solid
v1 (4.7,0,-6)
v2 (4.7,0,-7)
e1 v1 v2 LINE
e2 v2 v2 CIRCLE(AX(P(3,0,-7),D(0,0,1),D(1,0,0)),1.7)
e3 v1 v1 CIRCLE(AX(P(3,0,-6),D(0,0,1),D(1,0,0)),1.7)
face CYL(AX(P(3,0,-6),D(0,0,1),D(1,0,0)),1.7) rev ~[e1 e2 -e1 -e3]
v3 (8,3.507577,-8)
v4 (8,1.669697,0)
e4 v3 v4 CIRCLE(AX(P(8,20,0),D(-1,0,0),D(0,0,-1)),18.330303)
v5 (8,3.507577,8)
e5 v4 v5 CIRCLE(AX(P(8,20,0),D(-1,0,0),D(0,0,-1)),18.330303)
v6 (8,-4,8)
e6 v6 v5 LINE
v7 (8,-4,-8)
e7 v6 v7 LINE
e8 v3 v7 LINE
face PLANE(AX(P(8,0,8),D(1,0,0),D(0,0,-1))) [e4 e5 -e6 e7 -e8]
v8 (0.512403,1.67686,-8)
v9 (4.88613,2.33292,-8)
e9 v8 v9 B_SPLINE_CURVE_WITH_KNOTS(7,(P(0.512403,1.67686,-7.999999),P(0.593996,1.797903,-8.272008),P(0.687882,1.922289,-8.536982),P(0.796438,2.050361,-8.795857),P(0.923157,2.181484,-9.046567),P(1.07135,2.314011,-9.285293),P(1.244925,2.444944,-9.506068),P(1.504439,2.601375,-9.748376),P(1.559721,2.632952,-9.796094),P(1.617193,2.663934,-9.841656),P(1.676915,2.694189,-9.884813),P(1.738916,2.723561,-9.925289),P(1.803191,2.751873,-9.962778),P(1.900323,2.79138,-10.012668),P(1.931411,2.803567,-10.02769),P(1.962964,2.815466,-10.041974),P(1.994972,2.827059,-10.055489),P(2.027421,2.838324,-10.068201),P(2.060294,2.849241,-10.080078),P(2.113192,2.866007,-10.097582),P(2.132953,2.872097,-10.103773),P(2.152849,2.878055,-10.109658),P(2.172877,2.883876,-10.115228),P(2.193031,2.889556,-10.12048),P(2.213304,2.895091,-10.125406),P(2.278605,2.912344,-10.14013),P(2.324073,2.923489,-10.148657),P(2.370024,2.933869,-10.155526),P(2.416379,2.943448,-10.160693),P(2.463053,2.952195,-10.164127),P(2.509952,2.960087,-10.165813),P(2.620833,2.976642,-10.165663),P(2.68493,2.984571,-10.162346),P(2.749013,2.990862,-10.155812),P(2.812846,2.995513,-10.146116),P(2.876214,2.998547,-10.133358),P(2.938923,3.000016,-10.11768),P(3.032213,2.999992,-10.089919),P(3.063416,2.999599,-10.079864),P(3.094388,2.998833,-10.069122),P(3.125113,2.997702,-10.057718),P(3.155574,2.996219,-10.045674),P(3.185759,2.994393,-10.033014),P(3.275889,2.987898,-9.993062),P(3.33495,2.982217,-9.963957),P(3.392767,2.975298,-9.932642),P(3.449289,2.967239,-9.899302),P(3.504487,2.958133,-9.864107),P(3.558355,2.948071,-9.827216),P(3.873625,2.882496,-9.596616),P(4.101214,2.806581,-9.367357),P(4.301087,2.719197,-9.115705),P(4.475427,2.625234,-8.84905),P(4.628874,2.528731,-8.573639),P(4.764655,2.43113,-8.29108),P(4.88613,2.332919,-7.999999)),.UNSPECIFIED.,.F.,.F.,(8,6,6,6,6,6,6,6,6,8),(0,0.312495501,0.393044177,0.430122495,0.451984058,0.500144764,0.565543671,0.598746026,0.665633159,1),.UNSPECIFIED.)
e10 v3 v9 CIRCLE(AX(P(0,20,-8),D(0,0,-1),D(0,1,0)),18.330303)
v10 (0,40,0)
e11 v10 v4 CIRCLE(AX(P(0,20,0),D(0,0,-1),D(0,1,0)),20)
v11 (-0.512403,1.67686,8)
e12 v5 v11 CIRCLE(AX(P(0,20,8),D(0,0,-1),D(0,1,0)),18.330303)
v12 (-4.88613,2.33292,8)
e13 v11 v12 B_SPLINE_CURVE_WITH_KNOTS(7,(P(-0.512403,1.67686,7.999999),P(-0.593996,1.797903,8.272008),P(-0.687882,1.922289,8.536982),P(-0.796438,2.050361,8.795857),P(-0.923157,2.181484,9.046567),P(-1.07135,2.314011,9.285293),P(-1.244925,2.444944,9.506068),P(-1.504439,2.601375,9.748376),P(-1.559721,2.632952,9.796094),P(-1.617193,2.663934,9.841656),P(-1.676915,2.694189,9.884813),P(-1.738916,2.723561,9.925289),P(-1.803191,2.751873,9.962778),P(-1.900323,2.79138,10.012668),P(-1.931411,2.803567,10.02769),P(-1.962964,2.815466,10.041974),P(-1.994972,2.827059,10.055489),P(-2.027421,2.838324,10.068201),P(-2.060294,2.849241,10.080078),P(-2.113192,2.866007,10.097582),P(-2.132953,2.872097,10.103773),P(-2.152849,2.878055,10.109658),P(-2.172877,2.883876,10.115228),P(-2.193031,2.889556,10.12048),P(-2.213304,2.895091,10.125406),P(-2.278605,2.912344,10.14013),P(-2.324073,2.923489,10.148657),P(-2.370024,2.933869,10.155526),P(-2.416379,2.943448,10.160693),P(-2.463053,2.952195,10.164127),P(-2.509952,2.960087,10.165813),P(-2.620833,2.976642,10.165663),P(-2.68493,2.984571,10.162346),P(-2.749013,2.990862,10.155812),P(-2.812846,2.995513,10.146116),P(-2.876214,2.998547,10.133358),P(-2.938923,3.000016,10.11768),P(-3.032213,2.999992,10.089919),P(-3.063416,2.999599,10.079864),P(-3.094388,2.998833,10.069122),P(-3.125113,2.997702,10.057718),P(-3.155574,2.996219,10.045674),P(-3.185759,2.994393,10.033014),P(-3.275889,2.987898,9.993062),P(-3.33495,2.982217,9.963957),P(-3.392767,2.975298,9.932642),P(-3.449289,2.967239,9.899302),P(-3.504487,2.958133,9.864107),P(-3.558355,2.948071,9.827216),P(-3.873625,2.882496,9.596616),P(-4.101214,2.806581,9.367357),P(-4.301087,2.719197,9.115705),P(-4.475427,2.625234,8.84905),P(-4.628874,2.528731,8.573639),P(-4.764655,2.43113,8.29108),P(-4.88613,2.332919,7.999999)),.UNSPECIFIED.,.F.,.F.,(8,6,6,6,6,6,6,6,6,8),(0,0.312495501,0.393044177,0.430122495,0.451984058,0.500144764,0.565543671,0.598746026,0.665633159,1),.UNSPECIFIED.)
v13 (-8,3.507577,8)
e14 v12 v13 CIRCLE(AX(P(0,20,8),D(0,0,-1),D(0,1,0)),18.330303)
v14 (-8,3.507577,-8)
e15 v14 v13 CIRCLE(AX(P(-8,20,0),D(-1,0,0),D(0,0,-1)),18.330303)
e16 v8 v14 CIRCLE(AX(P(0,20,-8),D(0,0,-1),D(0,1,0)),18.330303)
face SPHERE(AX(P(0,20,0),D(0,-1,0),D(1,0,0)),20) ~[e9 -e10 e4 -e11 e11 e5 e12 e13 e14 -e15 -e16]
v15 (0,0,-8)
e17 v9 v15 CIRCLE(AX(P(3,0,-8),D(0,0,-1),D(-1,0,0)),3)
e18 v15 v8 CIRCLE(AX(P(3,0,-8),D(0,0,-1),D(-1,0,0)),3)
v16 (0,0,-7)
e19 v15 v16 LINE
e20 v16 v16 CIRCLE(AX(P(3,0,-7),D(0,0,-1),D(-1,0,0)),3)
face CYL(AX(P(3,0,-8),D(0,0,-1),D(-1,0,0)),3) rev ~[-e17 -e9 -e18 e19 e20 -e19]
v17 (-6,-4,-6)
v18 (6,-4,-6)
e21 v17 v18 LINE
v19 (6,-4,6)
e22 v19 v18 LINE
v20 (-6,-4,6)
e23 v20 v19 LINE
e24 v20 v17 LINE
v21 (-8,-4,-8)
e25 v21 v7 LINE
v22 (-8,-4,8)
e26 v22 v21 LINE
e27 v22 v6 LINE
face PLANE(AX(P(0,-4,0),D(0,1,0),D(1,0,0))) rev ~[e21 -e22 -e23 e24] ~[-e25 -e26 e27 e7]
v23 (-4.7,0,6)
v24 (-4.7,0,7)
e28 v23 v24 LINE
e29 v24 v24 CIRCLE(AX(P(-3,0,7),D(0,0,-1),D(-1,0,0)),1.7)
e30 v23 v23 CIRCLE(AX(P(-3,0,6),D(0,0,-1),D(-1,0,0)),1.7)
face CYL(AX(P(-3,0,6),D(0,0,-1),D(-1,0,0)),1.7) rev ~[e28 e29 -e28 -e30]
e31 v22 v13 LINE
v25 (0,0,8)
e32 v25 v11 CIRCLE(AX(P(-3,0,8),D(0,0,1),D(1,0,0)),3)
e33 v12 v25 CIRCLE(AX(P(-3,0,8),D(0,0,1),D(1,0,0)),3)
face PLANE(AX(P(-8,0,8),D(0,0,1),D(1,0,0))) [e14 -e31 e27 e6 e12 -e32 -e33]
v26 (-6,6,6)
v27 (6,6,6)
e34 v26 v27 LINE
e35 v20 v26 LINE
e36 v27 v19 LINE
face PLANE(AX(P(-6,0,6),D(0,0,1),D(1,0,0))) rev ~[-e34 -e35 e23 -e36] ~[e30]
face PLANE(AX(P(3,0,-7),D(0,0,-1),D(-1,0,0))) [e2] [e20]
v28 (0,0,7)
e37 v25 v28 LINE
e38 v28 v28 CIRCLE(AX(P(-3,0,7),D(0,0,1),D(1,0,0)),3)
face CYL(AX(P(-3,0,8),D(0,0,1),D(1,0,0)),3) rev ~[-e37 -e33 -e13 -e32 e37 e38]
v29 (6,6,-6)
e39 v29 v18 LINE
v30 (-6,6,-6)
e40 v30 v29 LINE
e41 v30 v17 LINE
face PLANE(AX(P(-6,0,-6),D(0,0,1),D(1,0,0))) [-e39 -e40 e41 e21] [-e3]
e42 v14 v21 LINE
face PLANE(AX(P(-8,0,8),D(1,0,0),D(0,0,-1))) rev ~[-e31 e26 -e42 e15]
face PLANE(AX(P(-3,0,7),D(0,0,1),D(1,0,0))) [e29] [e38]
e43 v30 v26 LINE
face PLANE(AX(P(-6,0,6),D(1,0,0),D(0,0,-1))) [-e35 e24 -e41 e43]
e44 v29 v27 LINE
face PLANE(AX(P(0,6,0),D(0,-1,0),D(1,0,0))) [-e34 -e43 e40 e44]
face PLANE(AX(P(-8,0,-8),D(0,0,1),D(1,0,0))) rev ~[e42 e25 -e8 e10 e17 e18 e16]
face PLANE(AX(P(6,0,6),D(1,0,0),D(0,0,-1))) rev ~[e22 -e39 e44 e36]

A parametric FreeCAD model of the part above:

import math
import FreeCAD as App
import Part
import Sketcher

V = App.Vector
Q = App.Units.Quantity


def add_polygon(sketch, points):
    """Adds a closed chain of lines whose ends are joined by coincident constraints."""
    first, n = sketch.GeometryCount, len(points)
    for a, b in zip(points, points[1:] + points[:1]):
        sketch.addGeometry(Part.LineSegment(App.Vector(*a, 0), App.Vector(*b, 0)), False)
    for i in range(n):
        sketch.addConstraint(Sketcher.Constraint("Coincident", first + i, 2, first + (i + 1) % n, 1))

doc = App.newDocument("Part")
params = doc.addObject("Spreadsheet::Sheet", "Params")
for row, (alias, value) in enumerate([
    ("sketch1_radius", "20 mm"),
    ("revolution_angle", "360 deg"),
    ("sketch2_width", "16 mm"),
    ("sketch2_width2", "12 mm"),
    ("sketch3_width", "16 mm"),
    ("sketch3_width2", "12 mm"),
    ("pad2_length", "4 mm"),
    ("sketch4_width", "12 mm"),
    ("pocket1_length", "10 mm"),
    ("sketch5_diameter", "3.4 mm"),
    ("pocket2_length", "3 mm"),
    ("sketch6_diameter", "3.4 mm"),
    ("pocket3_length", "3 mm"),
    ("sketch7_diameter", "6 mm"),
    ("pocket4_length", "13 mm"),
    ("pocket4_length2", "1 mm"),
    ("sketch8_diameter", "6 mm"),
    ("pocket5_length", "13 mm"),
    ("pocket5_length2", "1 mm"),
], start=1):
    params.set(f"A{row}", alias)
    params.set(f"B{row}", "=" + value)
    params.setAlias(f"B{row}", alias)

body = doc.addObject("PartDesign::Body", "Body")

# Sketch on XY plane
sketch1 = doc.addObject("Sketcher::SketchObject", "Sketch")
body.addObject(sketch1)
sketch1.AttachmentSupport = (doc.XY_Plane, [""])
sketch1.MapMode = "FlatFace"
sketch1.addGeometry([
    Part.LineSegment(V(0, 40, 0), V(0, 0, 0)),
    Part.ArcOfCircle(Part.Circle(V(0, 20, 0), V(0, 0, 1), 20), math.radians(-90), math.radians(90)),
], False)
sketch1.addConstraint([
    Sketcher.Constraint("Coincident", 0, 1, 1, 2),
    Sketcher.Constraint("Coincident", 1, 1, 0, 2),
    Sketcher.Constraint("Vertical", 0),
    Sketcher.Constraint("Coincident", 1, 1, -1, 1),
    Sketcher.Constraint("PointOnObject", 1, 3, -2),
    Sketcher.Constraint("Radius", 1, Q("20 mm")),
])
sketch1.setExpression("Constraints[5]", "Params.sketch1_radius")
revolution = doc.addObject("PartDesign::Revolution", "Revolution")
body.addObject(revolution)
revolution.Profile = sketch1
revolution.ReferenceAxis = (sketch1, ["V_Axis"])
revolution.setExpression("Angle", "Params.revolution_angle")

# Sketch on XZ plane
sketch2 = doc.addObject("Sketcher::SketchObject", "Sketch001")
body.addObject(sketch2)
sketch2.AttachmentSupport = (doc.XZ_Plane, [""])
sketch2.MapMode = "FlatFace"
add_polygon(sketch2, [(-8, -8), (-8, 8), (8, 8), (8, -8)])  # lines 0-3
add_polygon(sketch2, [(6, 6), (-6, 6), (-6, -6), (6, -6)])  # lines 4-7
sketch2.addConstraint([
    Sketcher.Constraint("Vertical", 0),
    Sketcher.Constraint("Horizontal", 1),
    Sketcher.Constraint("Vertical", 2),
    Sketcher.Constraint("Horizontal", 3),
    Sketcher.Constraint("Horizontal", 4),
    Sketcher.Constraint("Vertical", 5),
    Sketcher.Constraint("Horizontal", 6),
    Sketcher.Constraint("Vertical", 7),
    Sketcher.Constraint("Symmetric", 0, 2, 2, 2, -1, 1),
    Sketcher.Constraint("Symmetric", 4, 2, 6, 2, -1, 1),
    Sketcher.Constraint("Equal", 3, 0),
    Sketcher.Constraint("Equal", 6, 5),
    Sketcher.Constraint("DistanceX", 1, 1, 1, 2, Q("16 mm")),
    Sketcher.Constraint("DistanceX", 4, 2, 4, 1, Q("12 mm")),
])
sketch2.setExpression("Constraints[20]", "Params.sketch2_width")
sketch2.setExpression("Constraints[21]", "Params.sketch2_width2")
pad1 = doc.addObject("PartDesign::Pad", "Pad")
body.addObject(pad1)
pad1.Profile = sketch2
pad1.Type = "UpToFirst"
pad1.Reversed = True

# Sketch on XZ plane
sketch3 = doc.addObject("Sketcher::SketchObject", "Sketch002")
body.addObject(sketch3)
sketch3.AttachmentSupport = (doc.XZ_Plane, [""])
sketch3.MapMode = "FlatFace"
add_polygon(sketch3, [(-8, -8), (-8, 8), (8, 8), (8, -8)])  # lines 0-3
add_polygon(sketch3, [(6, 6), (-6, 6), (-6, -6), (6, -6)])  # lines 4-7
sketch3.addConstraint([
    Sketcher.Constraint("Vertical", 0),
    Sketcher.Constraint("Horizontal", 1),
    Sketcher.Constraint("Vertical", 2),
    Sketcher.Constraint("Horizontal", 3),
    Sketcher.Constraint("Horizontal", 4),
    Sketcher.Constraint("Vertical", 5),
    Sketcher.Constraint("Horizontal", 6),
    Sketcher.Constraint("Vertical", 7),
    Sketcher.Constraint("Symmetric", 0, 2, 2, 2, -1, 1),
    Sketcher.Constraint("Symmetric", 4, 2, 6, 2, -1, 1),
    Sketcher.Constraint("Equal", 3, 0),
    Sketcher.Constraint("Equal", 6, 5),
    Sketcher.Constraint("DistanceX", 1, 1, 1, 2, Q("16 mm")),
    Sketcher.Constraint("DistanceX", 4, 2, 4, 1, Q("12 mm")),
])
sketch3.setExpression("Constraints[20]", "Params.sketch3_width")
sketch3.setExpression("Constraints[21]", "Params.sketch3_width2")
pad2 = doc.addObject("PartDesign::Pad", "Pad001")
body.addObject(pad2)
pad2.Profile = sketch3
pad2.setExpression("Length", "Params.pad2_length")

# Sketch on XZ plane
sketch4 = doc.addObject("Sketcher::SketchObject", "Sketch003")
body.addObject(sketch4)
sketch4.AttachmentSupport = (doc.XZ_Plane, [""])
sketch4.MapMode = "FlatFace"
sketch4.AttachmentOffset = App.Placement(V(0, 0, 4), App.Rotation())
add_polygon(sketch4, [(-6, 6), (-6, -6), (6, -6), (6, 6)])  # lines 0-3
sketch4.addConstraint([
    Sketcher.Constraint("Vertical", 0),
    Sketcher.Constraint("Horizontal", 1),
    Sketcher.Constraint("Vertical", 2),
    Sketcher.Constraint("Horizontal", 3),
    Sketcher.Constraint("Symmetric", 0, 2, 2, 2, -1, 1),
    Sketcher.Constraint("Equal", 3, 0),
    Sketcher.Constraint("DistanceX", 1, 1, 1, 2, Q("12 mm")),
])
sketch4.setExpression("Constraints[10]", "Params.sketch4_width")
pocket1 = doc.addObject("PartDesign::Pocket", "Pocket")
body.addObject(pocket1)
pocket1.Profile = sketch4
pocket1.setExpression("Length", "Params.pocket1_length")

# Sketch on XY plane
sketch5 = doc.addObject("Sketcher::SketchObject", "Sketch004")
body.addObject(sketch5)
sketch5.AttachmentSupport = (doc.XY_Plane, [""])
sketch5.MapMode = "FlatFace"
sketch5.AttachmentOffset = App.Placement(V(0, 0, 6), App.Rotation())
sketch5.addGeometry(Part.Circle(V(-3, 0, 0), V(0, 0, 1), 1.7), False)
sketch5.addConstraint([
    Sketcher.Constraint("PointOnObject", 0, 3, -1),
    Sketcher.Constraint("Diameter", 0, Q("3.4 mm")),
    Sketcher.Constraint("DistanceX", 0, 3, -1, 1, Q("3 mm")),
])
sketch5.setExpression("Constraints[1]", "Params.sketch5_diameter")
pocket2 = doc.addObject("PartDesign::Pocket", "Pocket001")
body.addObject(pocket2)
pocket2.Profile = sketch5
pocket2.setExpression("Length", "Params.pocket2_length")
pocket2.Reversed = True

# Sketch on XY plane
sketch6 = doc.addObject("Sketcher::SketchObject", "Sketch005")
body.addObject(sketch6)
sketch6.AttachmentSupport = (doc.XY_Plane, [""])
sketch6.MapMode = "FlatFace"
sketch6.AttachmentOffset = App.Placement(V(0, 0, -6), App.Rotation())
sketch6.addGeometry(Part.Circle(V(3, 0, 0), V(0, 0, 1), 1.7), False)
sketch6.addConstraint([
    Sketcher.Constraint("PointOnObject", 0, 3, -1),
    Sketcher.Constraint("Diameter", 0, Q("3.4 mm")),
    Sketcher.Constraint("DistanceX", -1, 1, 0, 3, Q("3 mm")),
])
sketch6.setExpression("Constraints[1]", "Params.sketch6_diameter")
pocket3 = doc.addObject("PartDesign::Pocket", "Pocket002")
body.addObject(pocket3)
pocket3.Profile = sketch6
pocket3.setExpression("Length", "Params.pocket3_length")

# Sketch on XY plane
sketch7 = doc.addObject("Sketcher::SketchObject", "Sketch006")
body.addObject(sketch7)
sketch7.AttachmentSupport = (doc.XY_Plane, [""])
sketch7.MapMode = "FlatFace"
sketch7.AttachmentOffset = App.Placement(V(0, 0, -8), App.Rotation())
sketch7.addGeometry(Part.Circle(V(3, 0, 0), V(0, 0, 1), 3), False)
sketch7.addConstraint([
    Sketcher.Constraint("PointOnObject", 0, 3, -1),
    Sketcher.Constraint("Diameter", 0, Q("6 mm")),
    Sketcher.Constraint("DistanceX", -1, 1, 0, 3, Q("3 mm")),
])
sketch7.setExpression("Constraints[1]", "Params.sketch7_diameter")
pocket4 = doc.addObject("PartDesign::Pocket", "Pocket003")
body.addObject(pocket4)
pocket4.Profile = sketch7
pocket4.Type = "TwoLengths"
pocket4.setExpression("Length", "Params.pocket4_length")
pocket4.setExpression("Length2", "Params.pocket4_length2")

# Sketch on XY plane
sketch8 = doc.addObject("Sketcher::SketchObject", "Sketch007")
body.addObject(sketch8)
sketch8.AttachmentSupport = (doc.XY_Plane, [""])
sketch8.MapMode = "FlatFace"
sketch8.AttachmentOffset = App.Placement(V(0, 0, 8), App.Rotation())
sketch8.addGeometry(Part.Circle(V(-3, 0, 0), V(0, 0, 1), 3), False)
sketch8.addConstraint([
    Sketcher.Constraint("PointOnObject", 0, 3, -1),
    Sketcher.Constraint("Diameter", 0, Q("6 mm")),
    Sketcher.Constraint("DistanceX", 0, 3, -1, 1, Q("3 mm")),
])
sketch8.setExpression("Constraints[1]", "Params.sketch8_diameter")
pocket5 = doc.addObject("PartDesign::Pocket", "Pocket004")
body.addObject(pocket5)
pocket5.Profile = sketch8
pocket5.Type = "TwoLengths"
pocket5.setExpression("Length", "Params.pocket5_length")
pocket5.setExpression("Length2", "Params.pocket5_length2")
pocket5.Reversed = True

doc.recompute()
